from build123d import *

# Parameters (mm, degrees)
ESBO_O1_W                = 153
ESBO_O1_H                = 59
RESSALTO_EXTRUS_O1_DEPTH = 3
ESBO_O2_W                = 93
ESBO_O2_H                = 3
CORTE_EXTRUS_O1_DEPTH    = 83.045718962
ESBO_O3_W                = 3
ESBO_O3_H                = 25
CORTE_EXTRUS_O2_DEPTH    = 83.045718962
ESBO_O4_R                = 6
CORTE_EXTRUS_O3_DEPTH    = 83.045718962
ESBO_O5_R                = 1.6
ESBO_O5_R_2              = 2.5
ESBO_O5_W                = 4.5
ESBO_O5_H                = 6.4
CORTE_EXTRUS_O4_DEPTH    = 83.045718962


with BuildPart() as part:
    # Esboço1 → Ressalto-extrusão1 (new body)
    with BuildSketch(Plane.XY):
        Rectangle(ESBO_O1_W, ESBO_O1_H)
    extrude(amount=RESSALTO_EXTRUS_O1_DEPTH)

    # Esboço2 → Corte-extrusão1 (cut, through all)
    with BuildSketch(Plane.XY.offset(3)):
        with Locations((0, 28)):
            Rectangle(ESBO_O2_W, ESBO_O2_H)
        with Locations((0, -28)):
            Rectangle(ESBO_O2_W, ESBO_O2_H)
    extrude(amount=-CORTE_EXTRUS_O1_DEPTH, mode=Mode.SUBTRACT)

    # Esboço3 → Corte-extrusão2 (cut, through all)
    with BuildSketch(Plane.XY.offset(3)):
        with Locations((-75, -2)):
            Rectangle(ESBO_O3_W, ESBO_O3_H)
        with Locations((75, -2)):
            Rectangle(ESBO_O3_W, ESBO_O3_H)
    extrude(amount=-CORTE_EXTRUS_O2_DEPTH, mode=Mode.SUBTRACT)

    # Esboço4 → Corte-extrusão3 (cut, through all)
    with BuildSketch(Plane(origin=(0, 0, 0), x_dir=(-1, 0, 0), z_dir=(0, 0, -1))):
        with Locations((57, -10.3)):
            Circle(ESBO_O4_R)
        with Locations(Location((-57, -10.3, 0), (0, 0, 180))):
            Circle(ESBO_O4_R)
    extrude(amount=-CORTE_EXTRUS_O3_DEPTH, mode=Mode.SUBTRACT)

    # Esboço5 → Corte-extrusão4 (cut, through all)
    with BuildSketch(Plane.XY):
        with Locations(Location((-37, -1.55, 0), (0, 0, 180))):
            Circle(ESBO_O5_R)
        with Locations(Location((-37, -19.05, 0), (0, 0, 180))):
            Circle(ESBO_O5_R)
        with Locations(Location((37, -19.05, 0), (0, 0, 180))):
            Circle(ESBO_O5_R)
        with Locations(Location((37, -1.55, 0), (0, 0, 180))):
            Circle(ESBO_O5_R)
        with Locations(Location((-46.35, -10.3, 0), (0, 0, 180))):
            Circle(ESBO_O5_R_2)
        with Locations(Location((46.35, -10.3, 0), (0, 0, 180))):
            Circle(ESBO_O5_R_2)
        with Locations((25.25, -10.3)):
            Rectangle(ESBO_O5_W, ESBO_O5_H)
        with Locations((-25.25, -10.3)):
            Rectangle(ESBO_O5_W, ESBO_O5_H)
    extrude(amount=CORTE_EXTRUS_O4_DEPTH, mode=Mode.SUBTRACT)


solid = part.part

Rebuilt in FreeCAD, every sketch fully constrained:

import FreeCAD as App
import Part
import Sketcher
from FreeCAD import Vector
Q = App.Units.Quantity


def add_polygon(sketch, points):
    """Adds a closed chain of lines whose ends are joined by coincident constraints."""
    first, n = sketch.GeometryCount, len(points)
    for a, b in zip(points, points[1:] + points[:1]):
        sketch.addGeometry(Part.LineSegment(App.Vector(*a, 0), App.Vector(*b, 0)), False)
    for i in range(n):
        sketch.addConstraint(Sketcher.Constraint("Coincident", first + i, 2, first + (i + 1) % n, 1))

doc = App.newDocument("Part")
body = doc.addObject("PartDesign::Body", "Body")

# Sketch on XY plane
sketch1 = body.newObject("Sketcher::SketchObject", "Sketch")
sketch1.AttachmentSupport = (doc.getObject("XY_Plane"), [""])
sketch1.MapMode = "FlatFace"
add_polygon(sketch1, [(-76, 30), (-76, -30), (76, -30), (76, 30)])  # lines 0-3
sketch1.addConstraint([
    Sketcher.Constraint("Vertical", 0),
    Sketcher.Constraint("Horizontal", 1),
    Sketcher.Constraint("Vertical", 2),
    Sketcher.Constraint("Horizontal", 3),
    Sketcher.Constraint("Symmetric", 0, 2, 2, 2, -1, 1),
    Sketcher.Constraint("DistanceX", 1, 1, 1, 2, Q("153 mm")),
    Sketcher.Constraint("DistanceY", 0, 2, 0, 1, Q("59 mm")),
])
pad1 = body.newObject("PartDesign::Pad", "Pad")
pad1.Profile = sketch1
pad1.Length = 3

# Sketch on XY plane
sketch2 = body.newObject("Sketcher::SketchObject", "Sketch001")
sketch2.AttachmentSupport = (doc.getObject("XY_Plane"), [""])
sketch2.MapMode = "FlatFace"
sketch2.AttachmentOffset = App.Placement(Vector(0, 0, 3), App.Rotation())
add_polygon(sketch2, [(-46.5, 29.5), (-46.5, 26.5), (46.5, 26.5), (46.5, 29.5)])  # lines 0-3
add_polygon(sketch2, [(-46.5, -26.5), (-46.5, -29.5), (46.5, -29.5), (46.5, -26.5)])  # lines 4-7
sketch2.addConstraint([
    Sketcher.Constraint("Vertical", 0),
    Sketcher.Constraint("Horizontal", 1),
    Sketcher.Constraint("Vertical", 2),
    Sketcher.Constraint("Horizontal", 3),
    Sketcher.Constraint("Vertical", 4),
    Sketcher.Constraint("Horizontal", 5),
    Sketcher.Constraint("Vertical", 6),
    Sketcher.Constraint("Horizontal", 7),
    Sketcher.Constraint("Symmetric", 2, 2, 4, 2, -1, 1),
    Sketcher.Constraint("Symmetric", 0, 2, 6, 2, -1, 1),
    Sketcher.Constraint("Vertical", 3, 2, 4, 2),
    Sketcher.Constraint("DistanceX", 1, 1, 1, 2, Q("93 mm")),
    Sketcher.Constraint("DistanceY", 0, 2, 0, 1, Q("3 mm")),
    Sketcher.Constraint("DistanceY", 4, 2, 0, 2, Q("56 mm")),
])
pocket1 = body.newObject("PartDesign::Pocket", "Pocket")
pocket1.Profile = sketch2
pocket1.Type = "ThroughAll"

# Sketch on XY plane
sketch3 = body.newObject("Sketcher::SketchObject", "Sketch002")
sketch3.AttachmentSupport = (doc.getObject("XY_Plane"), [""])
sketch3.MapMode = "FlatFace"
sketch3.AttachmentOffset = App.Placement(Vector(0, 0, 3), App.Rotation())
add_polygon(sketch3, [(-76.5, 10.5), (-76.5, -14.5), (-73.5, -14.5), (-73.5, 10.5)])  # lines 0-3
add_polygon(sketch3, [(73.5, 10.5), (73.5, -14.5), (76.5, -14.5), (76.5, 10.5)])  # lines 4-7
sketch3.addConstraint([
    Sketcher.Constraint("Vertical", 0),
    Sketcher.Constraint("Horizontal", 1),
    Sketcher.Constraint("Vertical", 2),
    Sketcher.Constraint("Horizontal", 3),
    Sketcher.Constraint("Vertical", 4),
    Sketcher.Constraint("Horizontal", 5),
    Sketcher.Constraint("Vertical", 6),
    Sketcher.Constraint("Horizontal", 7),
    Sketcher.Constraint("Symmetric", 1, 2, 4, 2, -2),
    Sketcher.Constraint("Symmetric", 3, 2, 6, 2, -2),
    Sketcher.Constraint("DistanceX", 1, 1, 1, 2, Q("3 mm")),
    Sketcher.Constraint("DistanceY", 0, 2, 0, 1, Q("25 mm")),
    Sketcher.Constraint("DistanceX", 1, 2, 4, 2, Q("147 mm")),
    Sketcher.Constraint("DistanceY", 0, 2, -1, 1, Q("14.5 mm")),
])
pocket2 = body.newObject("PartDesign::Pocket", "Pocket001")
pocket2.Profile = sketch3
pocket2.Type = "ThroughAll"

# Sketch on XY plane
sketch4 = body.newObject("Sketcher::SketchObject", "Sketch003")
sketch4.AttachmentSupport = (doc.getObject("XY_Plane"), [""])
sketch4.MapMode = "FlatFace"
sketch4.addGeometry([
    Part.Circle(Vector(-57, -10, 0), Vector(0, 0, 1), 6),
    Part.Circle(Vector(57, -10, 0), Vector(0, 0, 1), 6),
], False)
sketch4.addConstraint([
    Sketcher.Constraint("Equal", 0, 1),
    Sketcher.Constraint("Symmetric", 0, 3, 1, 3, -2),
    Sketcher.Constraint("Diameter", 0, Q("12 mm")),
    Sketcher.Constraint("DistanceX", 0, 3, -1, 1, Q("57 mm")),
    Sketcher.Constraint("DistanceY", 0, 3, -1, 1, Q("10.3 mm")),
])
pocket3 = body.newObject("PartDesign::Pocket", "Pocket002")
pocket3.Profile = sketch4
pocket3.Type = "ThroughAll"
pocket3.Reversed = True

# Sketch on XY plane
sketch5 = body.newObject("Sketcher::SketchObject", "Sketch004")
sketch5.AttachmentSupport = (doc.getObject("XY_Plane"), [""])
sketch5.MapMode = "FlatFace"
sketch5.addGeometry(Part.Circle(Vector(-37, -1.6, 0), Vector(0, 0, 1), 1.6), False)  # 0
sketch5.addGeometry(Part.Circle(Vector(-37, -19.1, 0), Vector(0, 0, 1), 1.6), False)  # 1
sketch5.addGeometry(Part.Circle(Vector(37, -19.1, 0), Vector(0, 0, 1), 1.6), False)  # 2
sketch5.addGeometry(Part.Circle(Vector(37, -1.6, 0), Vector(0, 0, 1), 1.6), False)  # 3
sketch5.addGeometry(Part.Circle(Vector(-46.4, -10.3, 0), Vector(0, 0, 1), 2.5), False)  # 4
sketch5.addGeometry(Part.Circle(Vector(46.4, -10.3, 0), Vector(0, 0, 1), 2.5), False)  # 5
add_polygon(sketch5, [(23, -7.1), (23, -13.5), (27.5, -13.5), (27.5, -7.1)])  # lines 6-9
add_polygon(sketch5, [(-27.5, -7.1), (-27.5, -13.5), (-23, -13.5), (-23, -7.1)])  # lines 10-13
sketch5.addConstraint([
    Sketcher.Constraint("Vertical", 6),
    Sketcher.Constraint("Horizontal", 7),
    Sketcher.Constraint("Vertical", 8),
    Sketcher.Constraint("Horizontal", 9),
    Sketcher.Constraint("Vertical", 10),
    Sketcher.Constraint("Horizontal", 11),
    Sketcher.Constraint("Vertical", 12),
    Sketcher.Constraint("Horizontal", 13),
    Sketcher.Constraint("Equal", 0, 1),
    Sketcher.Constraint("Equal", 1, 2),
    Sketcher.Constraint("Equal", 2, 3),
    Sketcher.Constraint("Equal", 4, 5),
    Sketcher.Constraint("Symmetric", 1, 3, 2, 3, -2),
    Sketcher.Constraint("Symmetric", 0, 3, 3, 3, -2),
    Sketcher.Constraint("Symmetric", 4, 3, 5, 3, -2),
    Sketcher.Constraint("Symmetric", 7, 2, 10, 2, -2),
    Sketcher.Constraint("Symmetric", 9, 2, 12, 2, -2),
    Sketcher.Constraint("Vertical", 0, 3, 1, 3),
    Sketcher.Constraint("Diameter", 4, Q("5 mm")),
    Sketcher.Constraint("Diameter", 0, Q("3.2 mm")),
    Sketcher.Constraint("DistanceX", 7, 1, 7, 2, Q("4.5 mm")),
    Sketcher.Constraint("DistanceY", 6, 2, 6, 1, Q("6.4 mm")),
    Sketcher.Constraint("DistanceX", 0, 3, -1, 1, Q("37 mm")),
    Sketcher.Constraint("DistanceX", -1, 1, 6, 2, Q("23 mm")),
    Sketcher.Constraint("DistanceY", 4, 3, -1, 1, Q("10.3 mm")),
    Sketcher.Constraint("DistanceY", 6, 2, -1, 1, Q("13.5 mm")),
    Sketcher.Constraint("DistanceY", 1, 3, 0, 3, Q("17.5 mm")),
    Sketcher.Constraint("DistanceX", 4, 3, 5, 3, Q("92.7 mm")),
    Sketcher.Constraint("DistanceY", 0, 3, -1, 1, Q("1.55 mm")),
])
pocket4 = body.newObject("PartDesign::Pocket", "Pocket003")
pocket4.Profile = sketch5
pocket4.Type = "ThroughAll"
pocket4.Reversed = True

doc.recompute()
